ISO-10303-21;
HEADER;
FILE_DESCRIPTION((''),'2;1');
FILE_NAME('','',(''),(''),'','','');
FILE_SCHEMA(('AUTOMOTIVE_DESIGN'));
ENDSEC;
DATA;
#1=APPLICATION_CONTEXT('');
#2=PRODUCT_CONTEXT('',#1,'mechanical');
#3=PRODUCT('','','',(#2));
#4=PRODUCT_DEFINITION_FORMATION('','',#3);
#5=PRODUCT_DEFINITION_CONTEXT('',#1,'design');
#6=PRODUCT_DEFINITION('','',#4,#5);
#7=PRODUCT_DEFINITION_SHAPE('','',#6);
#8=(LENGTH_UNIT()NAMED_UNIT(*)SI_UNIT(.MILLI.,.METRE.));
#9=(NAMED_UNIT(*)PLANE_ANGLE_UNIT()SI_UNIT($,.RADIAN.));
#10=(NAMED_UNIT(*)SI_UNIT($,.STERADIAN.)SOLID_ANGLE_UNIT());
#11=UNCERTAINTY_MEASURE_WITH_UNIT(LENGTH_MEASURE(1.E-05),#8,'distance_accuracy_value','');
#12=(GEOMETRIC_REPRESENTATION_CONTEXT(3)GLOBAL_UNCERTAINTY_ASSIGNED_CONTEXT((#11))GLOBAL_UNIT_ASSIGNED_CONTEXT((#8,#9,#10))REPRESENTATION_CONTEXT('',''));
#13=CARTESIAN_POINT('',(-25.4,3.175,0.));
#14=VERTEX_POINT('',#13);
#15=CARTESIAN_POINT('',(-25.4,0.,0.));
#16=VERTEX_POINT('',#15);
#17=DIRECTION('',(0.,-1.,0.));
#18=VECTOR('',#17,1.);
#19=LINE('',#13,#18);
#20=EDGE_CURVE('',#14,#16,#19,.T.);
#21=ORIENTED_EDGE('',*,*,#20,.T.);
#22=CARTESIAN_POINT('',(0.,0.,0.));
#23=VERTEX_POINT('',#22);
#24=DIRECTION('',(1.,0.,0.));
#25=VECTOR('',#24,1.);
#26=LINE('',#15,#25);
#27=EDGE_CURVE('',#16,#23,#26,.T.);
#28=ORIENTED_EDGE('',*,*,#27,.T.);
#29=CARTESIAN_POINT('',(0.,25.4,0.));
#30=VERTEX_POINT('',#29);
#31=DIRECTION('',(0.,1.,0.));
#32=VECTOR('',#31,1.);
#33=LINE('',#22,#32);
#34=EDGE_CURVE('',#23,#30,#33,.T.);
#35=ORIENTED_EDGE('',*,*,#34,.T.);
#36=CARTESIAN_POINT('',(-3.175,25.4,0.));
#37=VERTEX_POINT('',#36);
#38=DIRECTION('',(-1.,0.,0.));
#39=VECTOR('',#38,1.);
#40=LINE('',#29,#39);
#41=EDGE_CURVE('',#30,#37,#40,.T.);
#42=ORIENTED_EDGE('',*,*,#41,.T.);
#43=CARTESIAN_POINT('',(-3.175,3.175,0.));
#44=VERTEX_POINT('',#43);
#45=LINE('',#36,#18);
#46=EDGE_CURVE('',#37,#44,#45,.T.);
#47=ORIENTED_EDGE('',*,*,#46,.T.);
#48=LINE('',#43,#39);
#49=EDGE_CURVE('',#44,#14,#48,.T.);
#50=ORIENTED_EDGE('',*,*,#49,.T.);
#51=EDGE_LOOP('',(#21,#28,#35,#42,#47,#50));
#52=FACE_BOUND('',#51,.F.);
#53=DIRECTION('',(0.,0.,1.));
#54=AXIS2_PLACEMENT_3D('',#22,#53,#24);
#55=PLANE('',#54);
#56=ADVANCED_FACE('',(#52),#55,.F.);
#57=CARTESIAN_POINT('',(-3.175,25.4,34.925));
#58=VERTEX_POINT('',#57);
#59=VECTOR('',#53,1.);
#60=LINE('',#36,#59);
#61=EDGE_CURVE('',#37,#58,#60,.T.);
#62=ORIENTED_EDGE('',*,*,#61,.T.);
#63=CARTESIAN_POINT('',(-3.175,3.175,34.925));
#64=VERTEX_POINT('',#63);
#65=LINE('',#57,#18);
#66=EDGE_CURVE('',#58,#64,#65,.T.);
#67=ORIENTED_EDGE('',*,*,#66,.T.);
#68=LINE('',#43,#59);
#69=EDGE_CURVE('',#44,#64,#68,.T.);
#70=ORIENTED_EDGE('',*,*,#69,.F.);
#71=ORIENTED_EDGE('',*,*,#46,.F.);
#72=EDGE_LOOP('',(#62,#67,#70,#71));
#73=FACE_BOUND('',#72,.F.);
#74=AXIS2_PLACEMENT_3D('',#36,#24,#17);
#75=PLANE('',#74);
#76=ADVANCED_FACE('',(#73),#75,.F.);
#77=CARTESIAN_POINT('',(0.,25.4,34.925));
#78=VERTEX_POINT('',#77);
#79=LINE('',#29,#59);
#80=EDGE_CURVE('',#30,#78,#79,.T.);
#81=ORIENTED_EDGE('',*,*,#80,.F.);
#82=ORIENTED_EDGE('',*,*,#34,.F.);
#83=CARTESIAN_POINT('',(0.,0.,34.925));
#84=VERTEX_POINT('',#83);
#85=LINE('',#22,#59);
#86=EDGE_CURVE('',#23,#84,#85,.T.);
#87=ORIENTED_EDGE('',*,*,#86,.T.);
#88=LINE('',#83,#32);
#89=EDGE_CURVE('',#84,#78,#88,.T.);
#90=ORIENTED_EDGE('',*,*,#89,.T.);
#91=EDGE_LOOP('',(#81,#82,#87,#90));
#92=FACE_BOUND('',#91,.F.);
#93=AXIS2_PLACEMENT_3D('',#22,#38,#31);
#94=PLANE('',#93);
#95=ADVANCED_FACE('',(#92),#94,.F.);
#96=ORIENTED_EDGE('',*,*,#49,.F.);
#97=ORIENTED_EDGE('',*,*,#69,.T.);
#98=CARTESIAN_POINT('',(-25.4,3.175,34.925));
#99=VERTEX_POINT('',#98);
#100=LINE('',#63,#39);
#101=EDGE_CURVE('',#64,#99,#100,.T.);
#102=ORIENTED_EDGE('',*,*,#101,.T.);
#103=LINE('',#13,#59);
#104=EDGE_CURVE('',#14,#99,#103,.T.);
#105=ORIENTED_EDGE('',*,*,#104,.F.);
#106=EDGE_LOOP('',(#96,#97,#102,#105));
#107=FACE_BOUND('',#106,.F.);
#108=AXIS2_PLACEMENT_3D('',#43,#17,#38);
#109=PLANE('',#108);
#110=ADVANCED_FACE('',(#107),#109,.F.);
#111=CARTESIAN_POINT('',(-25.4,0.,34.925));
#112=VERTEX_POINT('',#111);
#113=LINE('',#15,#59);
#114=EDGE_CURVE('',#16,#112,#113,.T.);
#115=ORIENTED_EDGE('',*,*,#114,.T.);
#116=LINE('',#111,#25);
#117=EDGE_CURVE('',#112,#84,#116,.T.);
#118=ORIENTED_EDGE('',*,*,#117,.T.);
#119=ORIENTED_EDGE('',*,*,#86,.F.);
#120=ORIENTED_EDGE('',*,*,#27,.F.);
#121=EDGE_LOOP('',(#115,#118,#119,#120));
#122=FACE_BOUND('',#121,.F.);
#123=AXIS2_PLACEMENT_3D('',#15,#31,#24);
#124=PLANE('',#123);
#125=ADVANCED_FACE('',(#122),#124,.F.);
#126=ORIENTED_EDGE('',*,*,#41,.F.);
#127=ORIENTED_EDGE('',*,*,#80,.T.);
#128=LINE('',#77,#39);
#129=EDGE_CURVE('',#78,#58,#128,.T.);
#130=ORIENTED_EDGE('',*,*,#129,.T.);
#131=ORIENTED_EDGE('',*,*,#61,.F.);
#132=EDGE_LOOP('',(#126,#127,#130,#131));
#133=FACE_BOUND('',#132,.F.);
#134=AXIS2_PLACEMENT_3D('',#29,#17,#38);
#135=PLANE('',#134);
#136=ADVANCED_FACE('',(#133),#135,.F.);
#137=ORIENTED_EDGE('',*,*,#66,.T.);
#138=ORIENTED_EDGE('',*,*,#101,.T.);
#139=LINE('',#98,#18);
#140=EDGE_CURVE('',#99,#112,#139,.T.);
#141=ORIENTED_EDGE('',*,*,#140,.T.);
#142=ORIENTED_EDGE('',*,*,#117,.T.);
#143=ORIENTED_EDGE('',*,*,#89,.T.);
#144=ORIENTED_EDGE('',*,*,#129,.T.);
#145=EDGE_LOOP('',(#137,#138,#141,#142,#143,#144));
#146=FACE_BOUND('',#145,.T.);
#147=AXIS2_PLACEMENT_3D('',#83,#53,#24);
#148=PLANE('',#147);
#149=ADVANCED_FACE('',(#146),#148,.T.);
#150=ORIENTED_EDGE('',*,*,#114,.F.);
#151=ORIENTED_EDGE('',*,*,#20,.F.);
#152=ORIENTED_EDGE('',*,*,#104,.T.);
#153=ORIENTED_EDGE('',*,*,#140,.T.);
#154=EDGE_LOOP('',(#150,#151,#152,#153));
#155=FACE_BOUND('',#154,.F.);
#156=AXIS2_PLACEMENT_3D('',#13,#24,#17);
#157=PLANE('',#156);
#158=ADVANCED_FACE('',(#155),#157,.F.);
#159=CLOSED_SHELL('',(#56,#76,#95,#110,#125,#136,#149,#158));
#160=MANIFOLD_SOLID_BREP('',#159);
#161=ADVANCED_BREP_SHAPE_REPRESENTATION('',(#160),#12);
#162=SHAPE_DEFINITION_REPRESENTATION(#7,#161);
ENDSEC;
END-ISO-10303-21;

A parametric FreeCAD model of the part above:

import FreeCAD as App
import Part
import Sketcher
from FreeCAD import Vector
Q = App.Units.Quantity


def add_polygon(sketch, points):
    """Adds a closed chain of lines whose ends are joined by coincident constraints."""
    first, n = sketch.GeometryCount, len(points)
    for a, b in zip(points, points[1:] + points[:1]):
        sketch.addGeometry(Part.LineSegment(App.Vector(*a, 0), App.Vector(*b, 0)), False)
    for i in range(n):
        sketch.addConstraint(Sketcher.Constraint("Coincident", first + i, 2, first + (i + 1) % n, 1))

doc = App.newDocument("Part")
body = doc.addObject("PartDesign::Body", "Body")

# Sketch on XY plane
sketch1 = body.newObject("Sketcher::SketchObject", "Sketch")
sketch1.AttachmentSupport = (doc.getObject("XY_Plane"), [""])
sketch1.MapMode = "FlatFace"
add_polygon(sketch1, [(-25.4, 3.2), (-25.4, 0), (0, 0), (0, 25.4), (-3.2, 25.4), (-3.2, 3.2)])  # lines 0-5
sketch1.addConstraint(Sketcher.Constraint("Vertical", 0))
sketch1.addConstraint(Sketcher.Constraint("Horizontal", 1))
sketch1.addConstraint(Sketcher.Constraint("Vertical", 2))
sketch1.addConstraint(Sketcher.Constraint("Horizontal", 3))
sketch1.addConstraint(Sketcher.Constraint("Vertical", 4))
sketch1.addConstraint(Sketcher.Constraint("Horizontal", 5))
sketch1.addConstraint(Sketcher.Constraint("Coincident", 1, 2, -1, 1))
sketch1.addConstraint(Sketcher.Constraint("Equal", 3, 0))
sketch1.addConstraint(Sketcher.Constraint("Equal", 1, 2))
sketch1.addConstraint(Sketcher.Constraint("DistanceX", 1, 1, 1, 2, Q("1 in")))
sketch1.addConstraint(Sketcher.Constraint("DistanceX", 3, 2, 3, 1, Q("0.125 in")))
pad1 = body.newObject("PartDesign::Pad", "Pad")
pad1.Profile = sketch1
pad1.Length = Q("1.375 in")

doc.recompute()
